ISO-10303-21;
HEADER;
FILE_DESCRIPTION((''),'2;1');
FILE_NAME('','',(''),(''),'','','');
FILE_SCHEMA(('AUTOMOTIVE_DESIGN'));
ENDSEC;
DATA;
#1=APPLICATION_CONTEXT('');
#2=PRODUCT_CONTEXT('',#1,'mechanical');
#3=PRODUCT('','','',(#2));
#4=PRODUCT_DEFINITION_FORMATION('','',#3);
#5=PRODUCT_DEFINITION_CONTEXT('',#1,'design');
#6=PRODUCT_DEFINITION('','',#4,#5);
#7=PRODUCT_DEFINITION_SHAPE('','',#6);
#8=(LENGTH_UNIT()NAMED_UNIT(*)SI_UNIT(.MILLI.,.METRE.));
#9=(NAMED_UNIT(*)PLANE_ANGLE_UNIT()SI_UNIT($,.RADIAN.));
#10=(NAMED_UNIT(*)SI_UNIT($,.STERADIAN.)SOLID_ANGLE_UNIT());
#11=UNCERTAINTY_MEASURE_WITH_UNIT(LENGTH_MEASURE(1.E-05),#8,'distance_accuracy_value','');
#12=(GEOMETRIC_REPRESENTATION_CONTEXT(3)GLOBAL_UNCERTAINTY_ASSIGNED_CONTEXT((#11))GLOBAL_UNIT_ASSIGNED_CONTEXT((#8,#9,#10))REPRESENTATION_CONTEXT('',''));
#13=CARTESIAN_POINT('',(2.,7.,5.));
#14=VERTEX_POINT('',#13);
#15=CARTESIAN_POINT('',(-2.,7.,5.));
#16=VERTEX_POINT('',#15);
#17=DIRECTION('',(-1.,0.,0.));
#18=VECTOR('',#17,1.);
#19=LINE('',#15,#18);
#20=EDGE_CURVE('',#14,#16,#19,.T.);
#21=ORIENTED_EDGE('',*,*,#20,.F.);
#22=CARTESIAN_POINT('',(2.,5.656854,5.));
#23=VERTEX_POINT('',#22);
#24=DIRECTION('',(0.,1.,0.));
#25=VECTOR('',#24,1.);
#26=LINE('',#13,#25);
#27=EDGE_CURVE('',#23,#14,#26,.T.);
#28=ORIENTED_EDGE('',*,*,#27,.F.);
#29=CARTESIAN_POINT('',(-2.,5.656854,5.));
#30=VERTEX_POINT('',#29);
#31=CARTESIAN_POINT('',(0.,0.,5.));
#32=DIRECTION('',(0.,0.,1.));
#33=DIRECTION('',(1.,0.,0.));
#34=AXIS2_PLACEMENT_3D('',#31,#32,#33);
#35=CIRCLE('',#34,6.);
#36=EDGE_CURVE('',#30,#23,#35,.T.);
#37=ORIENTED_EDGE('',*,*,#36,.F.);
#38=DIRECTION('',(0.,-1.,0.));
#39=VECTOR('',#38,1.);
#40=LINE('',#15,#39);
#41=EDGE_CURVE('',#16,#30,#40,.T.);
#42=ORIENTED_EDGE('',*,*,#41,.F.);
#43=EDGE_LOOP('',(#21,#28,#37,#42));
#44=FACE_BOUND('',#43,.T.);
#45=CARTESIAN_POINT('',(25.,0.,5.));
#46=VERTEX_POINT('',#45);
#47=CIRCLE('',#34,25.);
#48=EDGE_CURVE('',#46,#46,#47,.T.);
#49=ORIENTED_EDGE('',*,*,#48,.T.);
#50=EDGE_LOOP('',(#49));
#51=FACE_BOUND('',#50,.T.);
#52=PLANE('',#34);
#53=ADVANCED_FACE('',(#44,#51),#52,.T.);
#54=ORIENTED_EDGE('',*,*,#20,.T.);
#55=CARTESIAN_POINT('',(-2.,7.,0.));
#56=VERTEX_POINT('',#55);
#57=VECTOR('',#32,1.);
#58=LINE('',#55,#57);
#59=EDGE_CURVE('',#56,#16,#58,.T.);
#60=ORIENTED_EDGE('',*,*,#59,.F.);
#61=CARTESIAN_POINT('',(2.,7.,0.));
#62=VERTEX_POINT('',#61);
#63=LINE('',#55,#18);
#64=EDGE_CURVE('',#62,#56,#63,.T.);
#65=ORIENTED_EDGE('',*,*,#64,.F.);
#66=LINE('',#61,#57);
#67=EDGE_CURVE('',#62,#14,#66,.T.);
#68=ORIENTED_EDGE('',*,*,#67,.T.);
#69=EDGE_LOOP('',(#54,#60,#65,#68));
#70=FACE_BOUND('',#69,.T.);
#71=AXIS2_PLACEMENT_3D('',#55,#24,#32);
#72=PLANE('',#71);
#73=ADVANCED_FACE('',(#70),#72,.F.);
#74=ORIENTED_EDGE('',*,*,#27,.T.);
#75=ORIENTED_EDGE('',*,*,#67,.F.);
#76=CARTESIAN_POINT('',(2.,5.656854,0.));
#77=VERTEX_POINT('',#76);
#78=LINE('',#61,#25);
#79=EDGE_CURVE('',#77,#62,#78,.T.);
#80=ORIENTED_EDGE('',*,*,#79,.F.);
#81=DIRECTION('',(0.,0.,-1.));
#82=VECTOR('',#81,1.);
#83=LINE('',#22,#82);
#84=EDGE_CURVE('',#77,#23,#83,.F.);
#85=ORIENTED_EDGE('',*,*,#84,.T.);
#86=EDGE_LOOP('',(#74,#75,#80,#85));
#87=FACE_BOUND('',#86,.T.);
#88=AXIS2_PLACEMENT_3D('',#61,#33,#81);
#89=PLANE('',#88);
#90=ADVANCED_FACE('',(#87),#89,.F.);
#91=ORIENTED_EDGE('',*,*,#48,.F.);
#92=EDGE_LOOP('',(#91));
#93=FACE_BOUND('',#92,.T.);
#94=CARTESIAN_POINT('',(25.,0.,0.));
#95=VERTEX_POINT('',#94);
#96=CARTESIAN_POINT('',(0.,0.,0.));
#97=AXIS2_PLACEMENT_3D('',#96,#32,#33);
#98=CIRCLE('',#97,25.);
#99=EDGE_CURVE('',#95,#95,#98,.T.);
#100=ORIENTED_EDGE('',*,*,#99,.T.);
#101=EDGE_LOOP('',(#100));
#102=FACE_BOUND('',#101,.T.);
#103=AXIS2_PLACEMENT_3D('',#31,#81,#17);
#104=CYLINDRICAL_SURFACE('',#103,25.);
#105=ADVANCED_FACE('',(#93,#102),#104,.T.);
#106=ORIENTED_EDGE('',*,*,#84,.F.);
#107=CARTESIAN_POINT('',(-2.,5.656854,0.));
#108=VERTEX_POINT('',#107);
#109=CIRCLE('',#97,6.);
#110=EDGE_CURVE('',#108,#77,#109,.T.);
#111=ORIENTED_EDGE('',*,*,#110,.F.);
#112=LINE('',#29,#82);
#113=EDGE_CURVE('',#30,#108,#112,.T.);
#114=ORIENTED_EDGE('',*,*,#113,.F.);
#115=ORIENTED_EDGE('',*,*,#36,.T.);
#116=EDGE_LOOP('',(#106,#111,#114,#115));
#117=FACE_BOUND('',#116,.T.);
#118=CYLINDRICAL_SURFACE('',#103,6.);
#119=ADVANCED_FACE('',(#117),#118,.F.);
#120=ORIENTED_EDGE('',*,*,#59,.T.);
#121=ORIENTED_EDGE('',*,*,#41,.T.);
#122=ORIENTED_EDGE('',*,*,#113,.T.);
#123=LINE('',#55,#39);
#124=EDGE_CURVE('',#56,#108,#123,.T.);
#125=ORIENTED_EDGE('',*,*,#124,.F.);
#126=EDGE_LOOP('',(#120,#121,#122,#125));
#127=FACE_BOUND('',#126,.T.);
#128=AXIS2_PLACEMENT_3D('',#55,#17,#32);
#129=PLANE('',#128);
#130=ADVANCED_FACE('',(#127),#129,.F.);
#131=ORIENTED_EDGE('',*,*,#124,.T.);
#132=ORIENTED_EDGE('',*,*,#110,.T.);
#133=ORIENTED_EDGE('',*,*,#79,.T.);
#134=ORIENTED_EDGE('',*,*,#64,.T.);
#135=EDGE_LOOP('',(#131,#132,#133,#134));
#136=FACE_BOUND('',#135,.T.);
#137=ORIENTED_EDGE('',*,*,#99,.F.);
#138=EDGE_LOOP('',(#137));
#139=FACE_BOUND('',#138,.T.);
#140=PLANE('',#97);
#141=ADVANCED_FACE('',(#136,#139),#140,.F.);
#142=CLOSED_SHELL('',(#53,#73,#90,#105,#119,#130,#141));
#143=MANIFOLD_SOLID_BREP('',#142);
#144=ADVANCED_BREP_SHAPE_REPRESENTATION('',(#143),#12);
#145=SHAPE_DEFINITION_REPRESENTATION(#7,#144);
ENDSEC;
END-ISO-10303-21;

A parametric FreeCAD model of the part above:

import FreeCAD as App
import Part
import Sketcher
from FreeCAD import Vector


def add_polygon(sketch, points):
    """Adds a closed chain of lines whose ends are joined by coincident constraints."""
    first, n = sketch.GeometryCount, len(points)
    for a, b in zip(points, points[1:] + points[:1]):
        sketch.addGeometry(Part.LineSegment(App.Vector(*a, 0), App.Vector(*b, 0)), False)
    for i in range(n):
        sketch.addConstraint(Sketcher.Constraint("Coincident", first + i, 2, first + (i + 1) % n, 1))

doc = App.newDocument("Part")
params = doc.addObject("Spreadsheet::Sheet", "Params")
for row, (alias, value) in enumerate([
    ("sketch1_diameter", "50 mm"),
    ("sketch1_diameter2", "12 mm"),
    ("pad1_length", "5 mm"),
    ("sketch2_width", "4 mm"),
    ("sketch2_height", "2 mm"),
    ("pocket1_length", "5 mm"),
], start=1):
    params.set(f"A{row}", alias)
    params.set(f"B{row}", "=" + value)
    params.setAlias(f"B{row}", alias)

body = doc.addObject("PartDesign::Body", "Body")

sketch1 = body.newObject("Sketcher::SketchObject", "Sketch")
sketch1.AttachmentSupport = (doc.getObject("XY_Plane"), [""])
sketch1.MapMode = "FlatFace"
sketch1.addGeometry([
    Part.Circle(Vector(0, 0, 0), Vector(0, 0, 1), 25),
    Part.Circle(Vector(0, 0, 0), Vector(0, 0, 1), 6),
], False)
sketch1.addConstraint([
    Sketcher.Constraint("Coincident", 0, 3, -1, 1),
    Sketcher.Constraint("Coincident", 1, 3, -1, 1),
    Sketcher.Constraint("Diameter", 0, 50.0),
    Sketcher.Constraint("Diameter", 1, 12.0),
])
sketch1.setExpression("Constraints[2]", "Params.sketch1_diameter")
sketch1.setExpression("Constraints[3]", "Params.sketch1_diameter2")
pad1 = body.newObject("PartDesign::Pad", "Pad")
pad1.Profile = sketch1
pad1.setExpression("Length", "Params.pad1_length")

sketch2 = body.newObject("Sketcher::SketchObject", "Sketch001")
sketch2.AttachmentSupport = (doc.getObject("XY_Plane"), [""])
sketch2.MapMode = "FlatFace"
sketch2.AttachmentOffset = App.Placement(Vector(0, 0, 5), App.Rotation())
add_polygon(sketch2, [(-2, 7), (-2, 5), (2, 5), (2, 7)])
sketch2.addConstraint([
    Sketcher.Constraint("Vertical", 0),
    Sketcher.Constraint("Horizontal", 1),
    Sketcher.Constraint("Vertical", 2),
    Sketcher.Constraint("Horizontal", 3),
    Sketcher.Constraint("DistanceX", 1, 1, 1, 2, 4.0),
    Sketcher.Constraint("DistanceY", 0, 2, 0, 1, 2.0),
    Sketcher.Constraint("DistanceX", 0, 2, -1, 1, 2.0),
    Sketcher.Constraint("DistanceY", -1, 1, 0, 2, 5.0),
])
sketch2.setExpression("Constraints[8]", "Params.sketch2_width")
sketch2.setExpression("Constraints[9]", "Params.sketch2_height")
pocket1 = body.newObject("PartDesign::Pocket", "Pocket")
pocket1.Profile = sketch2
pocket1.setExpression("Length", "Params.pocket1_length")

doc.recompute()
